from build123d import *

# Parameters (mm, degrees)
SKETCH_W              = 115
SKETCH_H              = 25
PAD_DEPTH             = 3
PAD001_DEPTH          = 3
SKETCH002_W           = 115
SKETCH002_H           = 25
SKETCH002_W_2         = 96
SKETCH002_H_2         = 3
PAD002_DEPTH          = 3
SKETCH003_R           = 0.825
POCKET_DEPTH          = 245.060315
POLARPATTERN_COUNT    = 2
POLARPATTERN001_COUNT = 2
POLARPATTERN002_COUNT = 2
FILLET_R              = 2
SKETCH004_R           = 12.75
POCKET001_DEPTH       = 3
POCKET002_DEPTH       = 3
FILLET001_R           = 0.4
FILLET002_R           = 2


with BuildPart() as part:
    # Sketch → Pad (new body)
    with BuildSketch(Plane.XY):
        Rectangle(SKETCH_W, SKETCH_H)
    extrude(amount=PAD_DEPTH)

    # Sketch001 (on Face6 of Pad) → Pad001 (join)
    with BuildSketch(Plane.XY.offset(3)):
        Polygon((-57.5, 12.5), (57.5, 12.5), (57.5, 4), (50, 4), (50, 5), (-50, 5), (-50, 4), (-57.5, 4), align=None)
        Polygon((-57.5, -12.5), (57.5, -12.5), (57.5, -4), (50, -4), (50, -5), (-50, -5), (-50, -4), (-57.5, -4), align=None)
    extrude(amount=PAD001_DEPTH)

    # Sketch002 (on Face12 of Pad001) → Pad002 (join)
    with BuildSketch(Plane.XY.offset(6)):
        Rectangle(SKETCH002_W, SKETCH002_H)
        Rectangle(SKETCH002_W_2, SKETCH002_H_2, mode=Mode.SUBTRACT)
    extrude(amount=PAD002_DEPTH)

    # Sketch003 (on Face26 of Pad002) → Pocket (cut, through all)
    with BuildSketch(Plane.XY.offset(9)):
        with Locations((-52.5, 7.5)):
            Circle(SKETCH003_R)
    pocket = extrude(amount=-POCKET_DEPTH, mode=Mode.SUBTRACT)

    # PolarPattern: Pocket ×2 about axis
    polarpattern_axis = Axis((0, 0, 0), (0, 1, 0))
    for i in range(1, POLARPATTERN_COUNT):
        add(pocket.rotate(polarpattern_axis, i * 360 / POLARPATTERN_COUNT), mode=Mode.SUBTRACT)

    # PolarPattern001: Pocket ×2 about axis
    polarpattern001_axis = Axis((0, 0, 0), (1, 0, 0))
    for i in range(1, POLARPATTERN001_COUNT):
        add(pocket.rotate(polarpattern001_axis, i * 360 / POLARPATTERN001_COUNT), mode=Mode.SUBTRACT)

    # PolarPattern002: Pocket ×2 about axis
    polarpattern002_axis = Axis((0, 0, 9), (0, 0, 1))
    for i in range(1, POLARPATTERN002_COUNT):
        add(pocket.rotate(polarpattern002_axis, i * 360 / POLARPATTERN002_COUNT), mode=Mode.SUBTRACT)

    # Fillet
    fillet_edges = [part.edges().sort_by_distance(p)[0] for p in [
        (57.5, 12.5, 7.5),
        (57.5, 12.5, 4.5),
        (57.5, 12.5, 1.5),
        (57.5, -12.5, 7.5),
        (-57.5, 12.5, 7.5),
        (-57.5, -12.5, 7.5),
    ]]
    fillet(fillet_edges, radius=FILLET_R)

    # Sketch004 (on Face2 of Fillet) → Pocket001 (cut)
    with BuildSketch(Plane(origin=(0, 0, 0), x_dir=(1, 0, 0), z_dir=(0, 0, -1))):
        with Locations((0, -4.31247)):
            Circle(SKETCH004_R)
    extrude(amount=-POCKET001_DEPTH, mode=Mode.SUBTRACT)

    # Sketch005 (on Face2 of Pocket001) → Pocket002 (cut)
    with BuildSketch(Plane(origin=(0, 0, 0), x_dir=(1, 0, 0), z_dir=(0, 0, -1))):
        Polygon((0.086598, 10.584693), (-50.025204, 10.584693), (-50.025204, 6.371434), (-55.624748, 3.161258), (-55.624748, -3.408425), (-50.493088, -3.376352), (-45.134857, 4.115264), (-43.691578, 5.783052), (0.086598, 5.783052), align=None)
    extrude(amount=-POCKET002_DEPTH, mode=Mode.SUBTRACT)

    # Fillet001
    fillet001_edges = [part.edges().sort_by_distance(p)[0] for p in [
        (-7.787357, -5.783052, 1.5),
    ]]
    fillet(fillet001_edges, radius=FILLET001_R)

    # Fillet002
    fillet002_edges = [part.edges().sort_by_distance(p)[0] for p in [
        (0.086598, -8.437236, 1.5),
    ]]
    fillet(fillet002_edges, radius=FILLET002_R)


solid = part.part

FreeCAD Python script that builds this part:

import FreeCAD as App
import Part
import Sketcher
from FreeCAD import Vector


def edges_at(feature, points):
    """Names of the edges that pass closest to the given points."""
    edges = feature.Shape.Edges
    near = lambda p: min(range(len(edges)), key=lambda i: edges[i].distToShape(Part.Vertex(*p))[0])
    return sorted({f"Edge{near(p) + 1}" for p in points})


def add_polygon(sketch, points):
    """Adds a closed chain of lines whose ends are joined by coincident constraints."""
    first, n = sketch.GeometryCount, len(points)
    for a, b in zip(points, points[1:] + points[:1]):
        sketch.addGeometry(Part.LineSegment(App.Vector(*a, 0), App.Vector(*b, 0)), False)
    for i in range(n):
        sketch.addConstraint(Sketcher.Constraint("Coincident", first + i, 2, first + (i + 1) % n, 1))

doc = App.newDocument("Part")
body = doc.addObject("PartDesign::Body", "Body")

# Sketch on XY plane
sketch1 = doc.addObject("Sketcher::SketchObject", "Sketch")
body.addObject(sketch1)
sketch1.AttachmentSupport = (doc.XY_Plane, [""])
sketch1.MapMode = "FlatFace"
add_polygon(sketch1, [(-57.5, 12.5), (-57.5, -12.5), (57.5, -12.5), (57.5, 12.5)])  # lines 0-3
sketch1.addConstraint([
    Sketcher.Constraint("Vertical", 0),
    Sketcher.Constraint("Horizontal", 1),
    Sketcher.Constraint("Vertical", 2),
    Sketcher.Constraint("Horizontal", 3),
    Sketcher.Constraint("Symmetric", 0, 2, 2, 2, -1, 1),
    Sketcher.Constraint("DistanceX", 1, 1, 1, 2, 115.0),
    Sketcher.Constraint("DistanceY", 0, 2, 0, 1, 25.0),
])
pad1 = doc.addObject("PartDesign::Pad", "Pad")
body.addObject(pad1)
pad1.Profile = sketch1
pad1.Length = 3

# Sketch on XY plane
sketch2 = doc.addObject("Sketcher::SketchObject", "Sketch001")
body.addObject(sketch2)
sketch2.AttachmentSupport = (doc.XY_Plane, [""])
sketch2.MapMode = "FlatFace"
sketch2.AttachmentOffset = App.Placement(Vector(0, 0, 3), App.Rotation())
add_polygon(sketch2, [(57.5, 12.5), (-57.5, 12.5), (-57.5, 4), (-50, 4), (-50, 5), (50, 5), (50, 4), (57.5, 4)])  # lines 0-7
add_polygon(sketch2, [(-57.5, -12.5), (57.5, -12.5), (57.5, -4), (50, -4), (50, -5), (-50, -5), (-50, -4), (-57.5, -4)])  # lines 8-15
sketch2.addConstraint([
    Sketcher.Constraint("Horizontal", 0),
    Sketcher.Constraint("Vertical", 1),
    Sketcher.Constraint("Horizontal", 2),
    Sketcher.Constraint("Vertical", 3),
    Sketcher.Constraint("Horizontal", 4),
    Sketcher.Constraint("Vertical", 5),
    Sketcher.Constraint("Horizontal", 6),
    Sketcher.Constraint("Vertical", 7),
    Sketcher.Constraint("Horizontal", 8),
    Sketcher.Constraint("Vertical", 9),
    Sketcher.Constraint("Horizontal", 10),
    Sketcher.Constraint("Vertical", 11),
    Sketcher.Constraint("Horizontal", 12),
    Sketcher.Constraint("Vertical", 13),
    Sketcher.Constraint("Horizontal", 14),
    Sketcher.Constraint("Vertical", 15),
    Sketcher.Constraint("Symmetric", 0, 2, 8, 2, -1, 1),
    Sketcher.Constraint("Symmetric", 2, 2, 10, 2, -1, 1),
    Sketcher.Constraint("Symmetric", 4, 2, 12, 2, -1, 1),
    Sketcher.Constraint("Symmetric", 6, 2, 14, 2, -1, 1),
    Sketcher.Constraint("Symmetric", 2, 2, 5, 2, -2),
    Sketcher.Constraint("Vertical", 7, 2, 8, 2),
    Sketcher.Constraint("DistanceX", 0, 2, 0, 1, 115.0),
    Sketcher.Constraint("DistanceX", 4, 1, 4, 2, 100.0),
    Sketcher.Constraint("DistanceY", 3, 1, 3, 2, 1.0),
    Sketcher.Constraint("DistanceY", 1, 2, 1, 1, 8.5),
    Sketcher.Constraint("DistanceY", -1, 1, 1, 2, 4.0),
])
pad2 = doc.addObject("PartDesign::Pad", "Pad001")
body.addObject(pad2)
pad2.Profile = sketch2
pad2.Length = 3

# Sketch on XY plane
sketch3 = doc.addObject("Sketcher::SketchObject", "Sketch002")
body.addObject(sketch3)
sketch3.AttachmentSupport = (doc.XY_Plane, [""])
sketch3.MapMode = "FlatFace"
sketch3.AttachmentOffset = App.Placement(Vector(0, 0, 6), App.Rotation())
add_polygon(sketch3, [(-57.5, 12.5), (-57.5, -12.5), (57.5, -12.5), (57.5, 12.5)])  # lines 0-3
add_polygon(sketch3, [(48, -1.5), (-48, -1.5), (-48, 1.5), (48, 1.5)])  # lines 4-7
sketch3.addConstraint([
    Sketcher.Constraint("Vertical", 0),
    Sketcher.Constraint("Horizontal", 1),
    Sketcher.Constraint("Vertical", 2),
    Sketcher.Constraint("Horizontal", 3),
    Sketcher.Constraint("Horizontal", 4),
    Sketcher.Constraint("Vertical", 5),
    Sketcher.Constraint("Horizontal", 6),
    Sketcher.Constraint("Vertical", 7),
    Sketcher.Constraint("Symmetric", 0, 2, 2, 2, -1, 1),
    Sketcher.Constraint("Symmetric", 4, 2, 6, 2, -1, 1),
    Sketcher.Constraint("DistanceX", 1, 1, 1, 2, 115.0),
    Sketcher.Constraint("DistanceX", 4, 2, 4, 1, 96.0),
    Sketcher.Constraint("DistanceY", 0, 2, 0, 1, 25.0),
    Sketcher.Constraint("DistanceY", 5, 1, 5, 2, 3.0),
])
pad3 = doc.addObject("PartDesign::Pad", "Pad002")
body.addObject(pad3)
pad3.Profile = sketch3
pad3.Length = 3

# Sketch on XY plane
sketch4 = doc.addObject("Sketcher::SketchObject", "Sketch003")
body.addObject(sketch4)
sketch4.AttachmentSupport = (doc.XY_Plane, [""])
sketch4.MapMode = "FlatFace"
sketch4.AttachmentOffset = App.Placement(Vector(0, 0, 9), App.Rotation())
sketch4.addGeometry(Part.Circle(Vector(-52.5, 7.5, 0), Vector(0, 0, 1), 0.825), False)
sketch4.addConstraint([
    Sketcher.Constraint("Diameter", 0, 1.65),
    Sketcher.Constraint("DistanceX", 0, 3, -1, 1, 52.5),
    Sketcher.Constraint("DistanceY", -1, 1, 0, 3, 7.5),
])
pocket1 = doc.addObject("PartDesign::Pocket", "Pocket")
body.addObject(pocket1)
pocket1.Profile = sketch4
pocket1.Type = "ThroughAll"
doc.recompute()

polarpattern = doc.addObject("PartDesign::PolarPattern", "PolarPattern")
body.addObject(polarpattern)
polarpattern.Originals = [pocket1]
polarpattern.Axis = (doc.Y_Axis, [""])
polarpattern.Angle = 360
polarpattern.Occurrences = 2
body.Tip = polarpattern
doc.recompute()

polarpattern2 = doc.addObject("PartDesign::PolarPattern", "PolarPattern001")
body.addObject(polarpattern2)
polarpattern2.Originals = [pocket1]
polarpattern2.Axis = (doc.X_Axis, [""])
polarpattern2.Angle = 360
polarpattern2.Occurrences = 2
body.Tip = polarpattern2
doc.recompute()

polarpattern3 = doc.addObject("PartDesign::PolarPattern", "PolarPattern002")
body.addObject(polarpattern3)
polarpattern3.Originals = [pocket1]
polarpattern3.Axis = (doc.Z_Axis, [""])
polarpattern3.Angle = 360
polarpattern3.Occurrences = 2
body.Tip = polarpattern3
doc.recompute()

fillet = doc.addObject("PartDesign::Fillet", "Fillet")
body.addObject(fillet)
fillet.Base = (polarpattern3, edges_at(polarpattern3, [
    (57.5, 12.5, 4.5),
    (57.5, 12.5, 4.5),
    (57.5, 12.5, 4.5),
    (57.5, -12.5, 4.5),
    (-57.5, 12.5, 4.5),
    (-57.5, -12.5, 4.5),
]))
fillet.Radius = 2

# Sketch on XY plane
sketch5 = doc.addObject("Sketcher::SketchObject", "Sketch004")
body.addObject(sketch5)
sketch5.AttachmentSupport = (doc.XY_Plane, [""])
sketch5.MapMode = "FlatFace"
sketch5.addGeometry(Part.Circle(Vector(0, 4.31247, 0), Vector(0, 0, 1), 12.75), False)
sketch5.addConstraint([
    Sketcher.Constraint("PointOnObject", 0, 3, -2),
    Sketcher.Constraint("Diameter", 0, 25.5),
    Sketcher.Constraint("DistanceY", -1, 1, 0, 3, 4.31247),
])
pocket2 = doc.addObject("PartDesign::Pocket", "Pocket001")
body.addObject(pocket2)
pocket2.Profile = sketch5
pocket2.Length = 3
pocket2.Reversed = True

# Sketch on XY plane
sketch6 = doc.addObject("Sketcher::SketchObject", "Sketch005")
body.addObject(sketch6)
sketch6.AttachmentSupport = (doc.XY_Plane, [""])
sketch6.MapMode = "FlatFace"
add_polygon(sketch6, [(0.086598, -10.584693), (-50.025204, -10.584693), (-50.025204, -6.371434), (-55.624748, -3.161258), (-55.624748, 3.408425), (-50.493088, 3.376352), (-45.134857, -4.115264), (-43.691578, -5.783052), (0.086598, -5.783052)])  # lines 0-8
sketch6.addConstraint([
    Sketcher.Constraint("Horizontal", 0),
    Sketcher.Constraint("Vertical", 1),
    Sketcher.Constraint("Vertical", 3),
    Sketcher.Constraint("Horizontal", 7),
    Sketcher.Constraint("Vertical", 8),
    Sketcher.Constraint("DistanceY", 1, 1, 1, 2, 4.213259),
    Sketcher.Constraint("DistanceY", 8, 2, 8, 1, 4.801641),
    Sketcher.Constraint("Distance", 4, 5.13176),
    Sketcher.Constraint("Distance", 5, 9.210589),
    Sketcher.Constraint("DistanceX", 0, 2, 0, 1, 50.111802),
    Sketcher.Constraint("DistanceX", 7, 1, 7, 2, 43.778176),
    Sketcher.Constraint("DistanceY", 3, 1, 3, 2, 6.569683),
    Sketcher.Constraint("DistanceY", 2, 2, -1, 1, 3.161258),
    Sketcher.Constraint("DistanceY", -1, 1, 4, 2, 3.376352),
    Sketcher.Constraint("DistanceY", 6, 2, -1, 1, 5.783052),
    Sketcher.Constraint("DistanceY", 1, 2, 5, 2, 2.25617),
    Sketcher.Constraint("DistanceX", 5, 2, 6, 2, 1.443279),
    Sketcher.Constraint("DistanceX", 0, 2, -1, 1, 50.025204),
])
pocket3 = doc.addObject("PartDesign::Pocket", "Pocket002")
body.addObject(pocket3)
pocket3.Profile = sketch6
pocket3.Length = 3
pocket3.Reversed = True
doc.recompute()

fillet2 = doc.addObject("PartDesign::Fillet", "Fillet001")
body.addObject(fillet2)
fillet2.Base = (pocket3, edges_at(pocket3, [(-7.787, -5.783, 1.5)]))
fillet2.Radius = 0.4
doc.recompute()

fillet3 = doc.addObject("PartDesign::Fillet", "Fillet002")
body.addObject(fillet3)
fillet3.Base = (fillet2, edges_at(fillet2, [(0.087, -8.437, 1.5)]))
fillet3.Radius = 2

doc.recompute()
